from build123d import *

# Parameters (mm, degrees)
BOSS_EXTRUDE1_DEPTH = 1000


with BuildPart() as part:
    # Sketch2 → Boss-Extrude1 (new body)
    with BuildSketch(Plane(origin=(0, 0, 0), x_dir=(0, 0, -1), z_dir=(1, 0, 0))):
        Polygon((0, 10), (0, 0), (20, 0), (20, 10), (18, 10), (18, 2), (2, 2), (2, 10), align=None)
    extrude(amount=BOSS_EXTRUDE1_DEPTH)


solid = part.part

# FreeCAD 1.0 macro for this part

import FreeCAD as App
import Part
import Sketcher
from FreeCAD import Vector


def add_polygon(sketch, points):
    """Adds a closed chain of lines whose ends are joined by coincident constraints."""
    first, n = sketch.GeometryCount, len(points)
    for a, b in zip(points, points[1:] + points[:1]):
        sketch.addGeometry(Part.LineSegment(App.Vector(*a, 0), App.Vector(*b, 0)), False)
    for i in range(n):
        sketch.addConstraint(Sketcher.Constraint("Coincident", first + i, 2, first + (i + 1) % n, 1))

doc = App.newDocument("Part")
body = doc.addObject("PartDesign::Body", "Body")

# Sketch on YZ plane
sketch1 = body.newObject("Sketcher::SketchObject", "Sketch")
sketch1.AttachmentSupport = (doc.getObject("YZ_Plane"), [""])
sketch1.MapMode = "FlatFace"
add_polygon(sketch1, [(10, 0), (0, 0), (0, -20), (10, -20), (10, -18), (2, -18), (2, -2), (10, -2)])  # lines 0-7
sketch1.addConstraint([
    Sketcher.Constraint("Horizontal", 0),
    Sketcher.Constraint("Vertical", 1),
    Sketcher.Constraint("Horizontal", 2),
    Sketcher.Constraint("Vertical", 3),
    Sketcher.Constraint("Horizontal", 4),
    Sketcher.Constraint("Vertical", 5),
    Sketcher.Constraint("Horizontal", 6),
    Sketcher.Constraint("Vertical", 7),
    Sketcher.Constraint("Coincident", 0, 2, -1, 1),
    Sketcher.Constraint("Vertical", 3, 2, 6, 2),
    Sketcher.Constraint("Equal", 3, 7),
    Sketcher.Constraint("DistanceX", 0, 2, 0, 1, 10.0),
    Sketcher.Constraint("DistanceX", 4, 2, 4, 1, 8.0),
    Sketcher.Constraint("DistanceY", 1, 2, 1, 1, 20.0),
    Sketcher.Constraint("DistanceY", 3, 1, 3, 2, 2.0),
])
pad1 = body.newObject("PartDesign::Pad", "Pad")
pad1.Profile = sketch1
pad1.Length = 1000

doc.recompute()
